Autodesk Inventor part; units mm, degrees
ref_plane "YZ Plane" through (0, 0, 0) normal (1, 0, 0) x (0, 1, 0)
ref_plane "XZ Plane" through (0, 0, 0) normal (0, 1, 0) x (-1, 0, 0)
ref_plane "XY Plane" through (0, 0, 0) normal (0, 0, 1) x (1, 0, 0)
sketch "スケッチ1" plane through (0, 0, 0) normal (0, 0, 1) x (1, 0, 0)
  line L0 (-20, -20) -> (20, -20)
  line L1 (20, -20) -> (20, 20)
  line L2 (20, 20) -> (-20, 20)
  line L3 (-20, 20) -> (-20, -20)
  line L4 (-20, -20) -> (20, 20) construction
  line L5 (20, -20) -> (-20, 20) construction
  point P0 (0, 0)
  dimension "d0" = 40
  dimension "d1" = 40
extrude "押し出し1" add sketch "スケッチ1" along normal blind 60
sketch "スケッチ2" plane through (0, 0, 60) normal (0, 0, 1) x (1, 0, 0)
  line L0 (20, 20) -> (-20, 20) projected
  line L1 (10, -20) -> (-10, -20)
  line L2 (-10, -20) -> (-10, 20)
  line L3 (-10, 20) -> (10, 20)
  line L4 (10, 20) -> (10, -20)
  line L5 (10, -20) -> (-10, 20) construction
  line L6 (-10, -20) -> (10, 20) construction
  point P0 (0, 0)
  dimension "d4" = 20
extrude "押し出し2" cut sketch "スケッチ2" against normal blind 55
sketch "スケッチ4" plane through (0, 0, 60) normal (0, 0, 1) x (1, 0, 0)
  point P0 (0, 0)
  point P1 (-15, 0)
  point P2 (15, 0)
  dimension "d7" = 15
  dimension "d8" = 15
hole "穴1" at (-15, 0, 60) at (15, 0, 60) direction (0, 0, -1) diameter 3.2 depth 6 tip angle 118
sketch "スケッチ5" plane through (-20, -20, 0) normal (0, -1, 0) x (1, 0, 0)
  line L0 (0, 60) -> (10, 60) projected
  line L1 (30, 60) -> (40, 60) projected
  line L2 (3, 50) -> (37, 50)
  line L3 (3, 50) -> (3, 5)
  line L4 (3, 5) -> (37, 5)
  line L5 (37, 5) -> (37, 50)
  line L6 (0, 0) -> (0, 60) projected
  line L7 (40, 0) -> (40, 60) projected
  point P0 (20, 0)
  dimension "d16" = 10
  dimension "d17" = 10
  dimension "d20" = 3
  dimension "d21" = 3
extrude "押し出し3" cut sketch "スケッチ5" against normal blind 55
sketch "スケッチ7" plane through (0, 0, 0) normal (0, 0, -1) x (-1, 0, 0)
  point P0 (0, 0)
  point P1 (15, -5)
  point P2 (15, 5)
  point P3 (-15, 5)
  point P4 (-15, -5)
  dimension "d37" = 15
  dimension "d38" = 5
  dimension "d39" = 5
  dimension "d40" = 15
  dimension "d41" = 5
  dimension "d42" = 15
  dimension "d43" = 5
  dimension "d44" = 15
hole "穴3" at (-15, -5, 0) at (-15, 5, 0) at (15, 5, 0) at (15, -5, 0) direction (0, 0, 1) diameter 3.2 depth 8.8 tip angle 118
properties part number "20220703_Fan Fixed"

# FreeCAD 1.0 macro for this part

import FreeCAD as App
import Part
import Sketcher
Q = App.Units.Quantity

doc = App.newDocument("Part")
body = doc.addObject("PartDesign::Body", "Body")

sketch1 = body.newObject("Sketcher::SketchObject", "Sketch")
sketch1.AttachmentSupport = (doc.getObject("XY_Plane"), [""])
sketch1.MapMode = "FlatFace"
sketch1.addGeometry(Part.LineSegment(App.Vector(-20, 20, 0), App.Vector(-20, -20, 0)), False)
sketch1.addGeometry(Part.LineSegment(App.Vector(-20, -20, 0), App.Vector(20, -20, 0)), False)
sketch1.addGeometry(Part.LineSegment(App.Vector(20, -20, 0), App.Vector(20, 20, 0)), False)
sketch1.addGeometry(Part.LineSegment(App.Vector(20, 20, 0), App.Vector(-20, 20, 0)), False)
sketch1.addConstraint(Sketcher.Constraint("Coincident", 0, 2, 1, 1))
sketch1.addConstraint(Sketcher.Constraint("Coincident", 1, 2, 2, 1))
sketch1.addConstraint(Sketcher.Constraint("Coincident", 2, 2, 3, 1))
sketch1.addConstraint(Sketcher.Constraint("Coincident", 3, 2, 0, 1))
sketch1.addConstraint(Sketcher.Constraint("Vertical", 0))
sketch1.addConstraint(Sketcher.Constraint("Horizontal", 1))
sketch1.addConstraint(Sketcher.Constraint("Vertical", 2))
sketch1.addConstraint(Sketcher.Constraint("Horizontal", 3))
sketch1.addConstraint(Sketcher.Constraint("Symmetric", 0, 2, 2, 2, -1, 1))
sketch1.addConstraint(Sketcher.Constraint("Equal", 3, 0))
sketch1.addConstraint(Sketcher.Constraint("DistanceX", 1, 1, 1, 2, Q("40 mm")))
pad1 = body.newObject("PartDesign::Pad", "Pad")
pad1.Profile = sketch1
pad1.Length = 60

sketch2 = body.newObject("Sketcher::SketchObject", "Sketch001")
sketch2.AttachmentSupport = (doc.getObject("XY_Plane"), [""])
sketch2.MapMode = "FlatFace"
sketch2.AttachmentOffset = App.Placement(App.Vector(0, 0, 60), App.Rotation())
sketch2.addGeometry(Part.LineSegment(App.Vector(10, -20, 0), App.Vector(10, 20, 0)), False)
sketch2.addGeometry(Part.LineSegment(App.Vector(10, 20, 0), App.Vector(-10, 20, 0)), False)
sketch2.addGeometry(Part.LineSegment(App.Vector(-10, 20, 0), App.Vector(-10, -20, 0)), False)
sketch2.addGeometry(Part.LineSegment(App.Vector(-10, -20, 0), App.Vector(10, -20, 0)), False)
sketch2.addConstraint(Sketcher.Constraint("Coincident", 0, 2, 1, 1))
sketch2.addConstraint(Sketcher.Constraint("Coincident", 1, 2, 2, 1))
sketch2.addConstraint(Sketcher.Constraint("Coincident", 2, 2, 3, 1))
sketch2.addConstraint(Sketcher.Constraint("Coincident", 3, 2, 0, 1))
sketch2.addConstraint(Sketcher.Constraint("Vertical", 0))
sketch2.addConstraint(Sketcher.Constraint("Horizontal", 1))
sketch2.addConstraint(Sketcher.Constraint("Vertical", 2))
sketch2.addConstraint(Sketcher.Constraint("Horizontal", 3))
sketch2.addConstraint(Sketcher.Constraint("Symmetric", 0, 2, 2, 2, -1, 1))
sketch2.addConstraint(Sketcher.Constraint("DistanceX", 1, 2, 1, 1, Q("20 mm")))
sketch2.addConstraint(Sketcher.Constraint("DistanceY", -1, 1, 0, 2, Q("20 mm")))
pocket1 = body.newObject("PartDesign::Pocket", "Pocket")
pocket1.Profile = sketch2
pocket1.Length = 55

sketch3 = body.newObject("Sketcher::SketchObject", "Sketch002")
sketch3.AttachmentSupport = (doc.getObject("XY_Plane"), [""])
sketch3.MapMode = "FlatFace"
sketch3.AttachmentOffset = App.Placement(App.Vector(0, 0, 60), App.Rotation())
sketch3.addGeometry(Part.Circle(App.Vector(-15, 0, 0), App.Vector(0, 0, 1), 1.6), False)
sketch3.addGeometry(Part.Circle(App.Vector(15, 0, 0), App.Vector(0, 0, 1), 1.6), False)
sketch3.addConstraint(Sketcher.Constraint("Equal", 0, 1))
sketch3.addConstraint(Sketcher.Constraint("Symmetric", 0, 3, 1, 3, -1, 1))
sketch3.addConstraint(Sketcher.Constraint("PointOnObject", 0, 3, -1))
sketch3.addConstraint(Sketcher.Constraint("Diameter", 0, Q("3.2 mm")))
sketch3.addConstraint(Sketcher.Constraint("DistanceX", 0, 3, -1, 1, Q("15 mm")))
doc.recompute()
hole = body.newObject("PartDesign::Hole", "Hole")
hole.Profile = sketch3
hole.ThreadType = "None"
hole.Diameter = 3.2
hole.DepthType = "Dimension"
hole.Depth = 6
hole.DrillPoint = "Angled"
hole.DrillPointAngle = 118

sketch4 = body.newObject("Sketcher::SketchObject", "Sketch003")
sketch4.AttachmentSupport = (doc.getObject("XZ_Plane"), [""])
sketch4.MapMode = "FlatFace"
sketch4.AttachmentOffset = App.Placement(App.Vector(0, 0, 20), App.Rotation())
sketch4.addGeometry(Part.LineSegment(App.Vector(17, 50, 0), App.Vector(-17, 50, 0)), False)
sketch4.addGeometry(Part.LineSegment(App.Vector(-17, 50, 0), App.Vector(-17, 5, 0)), False)
sketch4.addGeometry(Part.LineSegment(App.Vector(-17, 5, 0), App.Vector(17, 5, 0)), False)
sketch4.addGeometry(Part.LineSegment(App.Vector(17, 5, 0), App.Vector(17, 50, 0)), False)
sketch4.addConstraint(Sketcher.Constraint("Coincident", 0, 2, 1, 1))
sketch4.addConstraint(Sketcher.Constraint("Coincident", 1, 2, 2, 1))
sketch4.addConstraint(Sketcher.Constraint("Coincident", 2, 2, 3, 1))
sketch4.addConstraint(Sketcher.Constraint("Coincident", 3, 2, 0, 1))
sketch4.addConstraint(Sketcher.Constraint("Horizontal", 0))
sketch4.addConstraint(Sketcher.Constraint("Vertical", 1))
sketch4.addConstraint(Sketcher.Constraint("Horizontal", 2))
sketch4.addConstraint(Sketcher.Constraint("Vertical", 3))
sketch4.addConstraint(Sketcher.Constraint("DistanceX", 0, 2, 0, 1, Q("34 mm")))
sketch4.addConstraint(Sketcher.Constraint("DistanceY", 1, 2, 1, 1, Q("45 mm")))
sketch4.addConstraint(Sketcher.Constraint("DistanceX", 0, 2, -1, 1, Q("17 mm")))
sketch4.addConstraint(Sketcher.Constraint("DistanceY", -1, 1, 0, 2, Q("50 mm")))
pocket2 = body.newObject("PartDesign::Pocket", "Pocket001")
pocket2.Profile = sketch4
pocket2.Length = 55

sketch5 = body.newObject("Sketcher::SketchObject", "Sketch004")
sketch5.AttachmentSupport = (doc.getObject("XY_Plane"), [""])
sketch5.MapMode = "FlatFace"
sketch5.addGeometry(Part.Circle(App.Vector(-15, -5, 0), App.Vector(0, 0, 1), 1.6), False)
sketch5.addGeometry(Part.Circle(App.Vector(-15, 5, 0), App.Vector(0, 0, 1), 1.6), False)
sketch5.addGeometry(Part.Circle(App.Vector(15, 5, 0), App.Vector(0, 0, 1), 1.6), False)
sketch5.addGeometry(Part.Circle(App.Vector(15, -5, 0), App.Vector(0, 0, 1), 1.6), False)
sketch5.addConstraint(Sketcher.Constraint("Equal", 0, 1))
sketch5.addConstraint(Sketcher.Constraint("Equal", 1, 2))
sketch5.addConstraint(Sketcher.Constraint("Equal", 2, 3))
sketch5.addConstraint(Sketcher.Constraint("Symmetric", 0, 3, 2, 3, -1, 1))
sketch5.addConstraint(Sketcher.Constraint("Symmetric", 1, 3, 3, 3, -1, 1))
sketch5.addConstraint(Sketcher.Constraint("Symmetric", 1, 3, 2, 3, -2))
sketch5.addConstraint(Sketcher.Constraint("Diameter", 0, Q("3.2 mm")))
sketch5.addConstraint(Sketcher.Constraint("DistanceX", 0, 3, -1, 1, Q("15 mm")))
sketch5.addConstraint(Sketcher.Constraint("DistanceY", 0, 3, -1, 1, Q("5 mm")))
doc.recompute()
hole2 = body.newObject("PartDesign::Hole", "Hole001")
hole2.Profile = sketch5
hole2.ThreadType = "None"
hole2.Diameter = 3.2
hole2.DepthType = "Dimension"
hole2.Depth = 8.8
hole2.DrillPoint = "Angled"
hole2.DrillPointAngle = 118
hole2.Reversed = True

doc.recompute()
